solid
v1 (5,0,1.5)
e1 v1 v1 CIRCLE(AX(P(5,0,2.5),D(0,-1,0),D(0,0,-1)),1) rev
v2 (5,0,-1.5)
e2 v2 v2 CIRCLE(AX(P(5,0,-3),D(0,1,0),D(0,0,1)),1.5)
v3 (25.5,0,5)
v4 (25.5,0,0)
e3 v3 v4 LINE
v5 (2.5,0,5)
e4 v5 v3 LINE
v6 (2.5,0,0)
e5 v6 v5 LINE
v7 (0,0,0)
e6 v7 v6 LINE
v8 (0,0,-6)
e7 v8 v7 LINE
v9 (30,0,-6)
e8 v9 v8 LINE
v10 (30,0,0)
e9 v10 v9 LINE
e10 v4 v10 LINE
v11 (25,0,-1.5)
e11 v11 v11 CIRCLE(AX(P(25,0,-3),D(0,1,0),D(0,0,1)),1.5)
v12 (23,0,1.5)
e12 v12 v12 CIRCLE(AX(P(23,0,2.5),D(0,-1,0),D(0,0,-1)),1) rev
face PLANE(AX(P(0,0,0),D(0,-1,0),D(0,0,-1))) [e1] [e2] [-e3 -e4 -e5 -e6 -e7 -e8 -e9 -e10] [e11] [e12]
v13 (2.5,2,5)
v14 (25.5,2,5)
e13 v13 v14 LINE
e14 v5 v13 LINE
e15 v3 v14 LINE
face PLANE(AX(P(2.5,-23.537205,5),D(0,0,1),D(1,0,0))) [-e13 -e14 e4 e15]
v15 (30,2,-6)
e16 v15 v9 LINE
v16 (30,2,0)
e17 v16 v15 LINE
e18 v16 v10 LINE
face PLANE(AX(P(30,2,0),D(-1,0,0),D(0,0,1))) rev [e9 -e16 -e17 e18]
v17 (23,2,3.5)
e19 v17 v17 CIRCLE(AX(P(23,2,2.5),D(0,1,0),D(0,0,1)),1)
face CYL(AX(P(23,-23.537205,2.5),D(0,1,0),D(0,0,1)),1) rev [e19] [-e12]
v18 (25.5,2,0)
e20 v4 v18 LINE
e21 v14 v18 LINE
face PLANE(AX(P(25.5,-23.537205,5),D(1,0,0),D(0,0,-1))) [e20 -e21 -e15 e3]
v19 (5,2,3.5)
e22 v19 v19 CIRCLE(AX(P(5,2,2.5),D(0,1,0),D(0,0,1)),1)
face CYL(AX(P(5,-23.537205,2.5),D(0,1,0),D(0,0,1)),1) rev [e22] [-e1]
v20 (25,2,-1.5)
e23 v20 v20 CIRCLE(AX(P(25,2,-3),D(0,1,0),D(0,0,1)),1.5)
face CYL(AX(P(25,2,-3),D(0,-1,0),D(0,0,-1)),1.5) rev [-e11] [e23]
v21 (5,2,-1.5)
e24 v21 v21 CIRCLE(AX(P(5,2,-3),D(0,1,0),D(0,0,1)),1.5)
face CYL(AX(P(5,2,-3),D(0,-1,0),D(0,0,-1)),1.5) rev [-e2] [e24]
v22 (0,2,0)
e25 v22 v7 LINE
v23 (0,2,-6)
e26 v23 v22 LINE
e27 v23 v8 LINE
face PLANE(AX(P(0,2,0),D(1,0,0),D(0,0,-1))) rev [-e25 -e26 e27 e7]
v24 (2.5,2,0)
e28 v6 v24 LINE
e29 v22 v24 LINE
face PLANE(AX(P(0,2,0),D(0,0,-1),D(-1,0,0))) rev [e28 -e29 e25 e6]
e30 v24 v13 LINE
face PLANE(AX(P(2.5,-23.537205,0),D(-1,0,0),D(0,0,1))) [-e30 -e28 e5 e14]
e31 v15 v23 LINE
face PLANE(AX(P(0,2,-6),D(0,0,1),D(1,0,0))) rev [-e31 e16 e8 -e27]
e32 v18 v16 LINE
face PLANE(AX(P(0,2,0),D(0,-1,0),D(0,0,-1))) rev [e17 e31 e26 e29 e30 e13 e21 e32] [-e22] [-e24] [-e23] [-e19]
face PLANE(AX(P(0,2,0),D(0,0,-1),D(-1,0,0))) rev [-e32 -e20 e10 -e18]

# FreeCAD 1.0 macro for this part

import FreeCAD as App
import Part
import Sketcher

V = App.Vector


def add_polygon(sketch, points):
    """Adds a closed chain of lines whose ends are joined by coincident constraints."""
    first, n = sketch.GeometryCount, len(points)
    for a, b in zip(points, points[1:] + points[:1]):
        sketch.addGeometry(Part.LineSegment(App.Vector(*a, 0), App.Vector(*b, 0)), False)
    for i in range(n):
        sketch.addConstraint(Sketcher.Constraint("Coincident", first + i, 2, first + (i + 1) % n, 1))

doc = App.newDocument("Part")
body = doc.addObject("PartDesign::Body", "Body")

sketch1 = body.newObject("Sketcher::SketchObject", "Sketch")
sketch1.AttachmentSupport = (doc.getObject("XZ_Plane"), [""])
sketch1.MapMode = "FlatFace"
add_polygon(sketch1, [(0, -6), (0, 0), (30, 0), (30, -6)])
sketch1.addGeometry(Part.Circle(V(5, -3, 0), V(0, 0, 1), 1.5), False)
sketch1.addGeometry(Part.Circle(V(25, -3, 0), V(0, 0, 1), 1.5), False)
sketch1.addConstraint([
    Sketcher.Constraint("Vertical", 0),
    Sketcher.Constraint("Horizontal", 1),
    Sketcher.Constraint("Vertical", 2),
    Sketcher.Constraint("Horizontal", 3),
    Sketcher.Constraint("Coincident", 0, 2, -1, 1),
    Sketcher.Constraint("Equal", 4, 5),
    Sketcher.Constraint("Horizontal", 4, 3, 5, 3),
    Sketcher.Constraint("Diameter", 4, 3.0),
    Sketcher.Constraint("DistanceX", 1, 1, 1, 2, 30.0),
    Sketcher.Constraint("DistanceY", 0, 1, 0, 2, 6.0),
    Sketcher.Constraint("DistanceX", -1, 1, 4, 3, 5.0),
    Sketcher.Constraint("DistanceY", 4, 3, -1, 1, 3.0),
    Sketcher.Constraint("DistanceX", -1, 1, 5, 3, 25.0),
])
pad1 = body.newObject("PartDesign::Pad", "Pad")
pad1.Profile = sketch1
pad1.Length = 2
pad1.Reversed = True

sketch2 = body.newObject("Sketcher::SketchObject", "Sketch001")
sketch2.AttachmentSupport = (doc.getObject("XZ_Plane"), [""])
sketch2.MapMode = "FlatFace"
sketch2.AttachmentOffset = App.Placement(V(0, 0, -2), App.Rotation())
add_polygon(sketch2, [(2.5, 0), (2.5, 5), (25.5, 5), (25.5, 0)])
sketch2.addGeometry(Part.Circle(V(5, 2.5, 0), V(0, 0, 1), 1), False)
sketch2.addGeometry(Part.Circle(V(23, 2.5, 0), V(0, 0, 1), 1), False)
sketch2.addConstraint([
    Sketcher.Constraint("Vertical", 0),
    Sketcher.Constraint("Horizontal", 1),
    Sketcher.Constraint("Vertical", 2),
    Sketcher.Constraint("Horizontal", 3),
    Sketcher.Constraint("Equal", 4, 5),
    Sketcher.Constraint("PointOnObject", 2, 2, -1),
    Sketcher.Constraint("Horizontal", 4, 3, 5, 3),
    Sketcher.Constraint("Diameter", 4, 2.0),
    Sketcher.Constraint("DistanceX", 1, 1, 1, 2, 23.0),
    Sketcher.Constraint("DistanceY", 0, 1, 0, 2, 5.0),
    Sketcher.Constraint("DistanceX", -1, 1, 4, 3, 5.0),
    Sketcher.Constraint("DistanceX", -1, 1, 5, 3, 23.0),
    Sketcher.Constraint("DistanceY", -1, 1, 4, 3, 2.5),
    Sketcher.Constraint("DistanceX", -1, 1, 0, 2, 2.5),
])
pad2 = body.newObject("PartDesign::Pad", "Pad001")
pad2.Profile = sketch2
pad2.Length = 2

doc.recompute()
